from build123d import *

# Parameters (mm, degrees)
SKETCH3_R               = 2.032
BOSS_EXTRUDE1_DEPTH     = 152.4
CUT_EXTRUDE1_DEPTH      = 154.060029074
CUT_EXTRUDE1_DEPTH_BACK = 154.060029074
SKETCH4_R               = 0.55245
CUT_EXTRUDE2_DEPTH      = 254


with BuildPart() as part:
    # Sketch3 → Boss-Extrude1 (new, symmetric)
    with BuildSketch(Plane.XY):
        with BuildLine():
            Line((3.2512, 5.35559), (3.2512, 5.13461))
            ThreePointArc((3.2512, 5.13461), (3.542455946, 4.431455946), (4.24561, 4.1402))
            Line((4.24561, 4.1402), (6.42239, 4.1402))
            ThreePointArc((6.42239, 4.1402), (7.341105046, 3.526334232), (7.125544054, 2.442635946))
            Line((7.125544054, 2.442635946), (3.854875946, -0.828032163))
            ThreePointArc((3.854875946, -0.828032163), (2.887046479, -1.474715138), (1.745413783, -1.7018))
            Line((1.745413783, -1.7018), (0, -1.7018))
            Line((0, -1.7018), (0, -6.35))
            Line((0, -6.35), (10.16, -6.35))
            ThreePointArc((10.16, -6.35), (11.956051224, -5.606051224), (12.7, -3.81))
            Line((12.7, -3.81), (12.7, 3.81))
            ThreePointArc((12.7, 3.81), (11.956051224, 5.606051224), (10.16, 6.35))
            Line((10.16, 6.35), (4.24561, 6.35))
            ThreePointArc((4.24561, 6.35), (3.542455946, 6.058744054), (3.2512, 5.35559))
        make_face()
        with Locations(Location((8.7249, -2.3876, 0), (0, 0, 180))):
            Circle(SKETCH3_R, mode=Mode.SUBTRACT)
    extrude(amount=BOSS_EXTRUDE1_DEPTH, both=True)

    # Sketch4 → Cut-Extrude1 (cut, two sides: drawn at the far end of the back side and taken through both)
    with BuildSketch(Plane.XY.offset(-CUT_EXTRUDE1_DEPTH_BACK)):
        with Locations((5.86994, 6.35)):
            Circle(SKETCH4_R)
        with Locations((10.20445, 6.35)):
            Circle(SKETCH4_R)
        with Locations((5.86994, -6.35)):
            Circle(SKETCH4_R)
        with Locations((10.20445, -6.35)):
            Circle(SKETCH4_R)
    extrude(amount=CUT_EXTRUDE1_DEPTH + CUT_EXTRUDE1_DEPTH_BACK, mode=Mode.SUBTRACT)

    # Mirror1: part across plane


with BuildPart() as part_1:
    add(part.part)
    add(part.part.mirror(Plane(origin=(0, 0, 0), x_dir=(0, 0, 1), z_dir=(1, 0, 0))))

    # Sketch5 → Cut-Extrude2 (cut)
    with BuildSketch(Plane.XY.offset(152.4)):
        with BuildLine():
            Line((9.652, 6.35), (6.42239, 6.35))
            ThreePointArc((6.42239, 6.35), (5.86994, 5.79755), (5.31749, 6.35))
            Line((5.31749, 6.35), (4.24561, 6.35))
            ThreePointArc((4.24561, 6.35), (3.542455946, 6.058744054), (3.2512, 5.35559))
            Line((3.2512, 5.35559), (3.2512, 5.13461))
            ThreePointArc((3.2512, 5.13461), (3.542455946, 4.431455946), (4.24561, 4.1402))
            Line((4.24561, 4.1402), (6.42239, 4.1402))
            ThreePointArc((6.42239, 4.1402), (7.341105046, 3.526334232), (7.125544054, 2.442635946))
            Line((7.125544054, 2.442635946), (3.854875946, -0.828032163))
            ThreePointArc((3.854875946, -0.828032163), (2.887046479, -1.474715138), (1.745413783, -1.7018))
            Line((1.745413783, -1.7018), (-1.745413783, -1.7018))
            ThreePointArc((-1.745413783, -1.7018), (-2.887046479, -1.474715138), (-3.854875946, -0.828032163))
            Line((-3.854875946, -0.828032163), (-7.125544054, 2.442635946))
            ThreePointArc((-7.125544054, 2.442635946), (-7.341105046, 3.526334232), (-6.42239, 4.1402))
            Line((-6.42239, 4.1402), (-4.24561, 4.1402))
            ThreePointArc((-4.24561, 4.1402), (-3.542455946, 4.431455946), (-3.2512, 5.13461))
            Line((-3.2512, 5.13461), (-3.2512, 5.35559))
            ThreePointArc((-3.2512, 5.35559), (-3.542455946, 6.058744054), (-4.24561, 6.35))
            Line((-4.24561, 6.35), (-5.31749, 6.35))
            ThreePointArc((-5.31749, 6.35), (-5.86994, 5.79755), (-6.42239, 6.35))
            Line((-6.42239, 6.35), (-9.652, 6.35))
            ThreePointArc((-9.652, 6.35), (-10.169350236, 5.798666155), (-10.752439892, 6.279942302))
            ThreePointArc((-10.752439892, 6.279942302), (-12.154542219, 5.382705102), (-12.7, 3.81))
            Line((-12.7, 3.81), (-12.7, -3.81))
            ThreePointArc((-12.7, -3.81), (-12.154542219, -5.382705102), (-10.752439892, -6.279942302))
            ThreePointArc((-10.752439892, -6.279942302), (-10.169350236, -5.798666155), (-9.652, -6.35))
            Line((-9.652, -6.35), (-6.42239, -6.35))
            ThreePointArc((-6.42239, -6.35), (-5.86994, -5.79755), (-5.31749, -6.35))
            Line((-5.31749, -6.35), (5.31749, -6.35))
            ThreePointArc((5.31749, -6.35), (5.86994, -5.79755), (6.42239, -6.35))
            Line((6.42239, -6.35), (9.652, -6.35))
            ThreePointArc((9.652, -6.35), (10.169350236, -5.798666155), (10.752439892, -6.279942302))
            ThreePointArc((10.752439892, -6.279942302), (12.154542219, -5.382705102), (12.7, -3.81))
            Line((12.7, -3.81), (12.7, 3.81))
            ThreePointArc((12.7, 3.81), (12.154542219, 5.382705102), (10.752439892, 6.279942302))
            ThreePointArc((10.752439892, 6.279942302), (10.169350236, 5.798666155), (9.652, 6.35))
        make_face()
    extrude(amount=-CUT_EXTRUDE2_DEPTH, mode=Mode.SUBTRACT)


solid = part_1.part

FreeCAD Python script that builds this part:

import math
import FreeCAD as App
import Part
import Sketcher
from FreeCAD import Vector
Q = App.Units.Quantity

doc = App.newDocument("Part")
body = doc.addObject("PartDesign::Body", "Body")

# Sketch on XY plane
sketch1 = body.newObject("Sketcher::SketchObject", "Sketch")
sketch1.AttachmentSupport = (doc.getObject("XY_Plane"), [""])
sketch1.MapMode = "FlatFace"
sketch1.addGeometry([
    Part.LineSegment(Vector(3.25, 5.36, 0), Vector(3.25, 5.13, 0)),  # 0
    Part.ArcOfCircle(Part.Circle(Vector(4.25, 5.13, 0), Vector(0, 0, 1), 0.99), math.radians(-180), math.radians(-90)),  # 1
    Part.LineSegment(Vector(4.25, 4.14, 0), Vector(6.42, 4.14, 0)),  # 2
    Part.ArcOfCircle(Part.Circle(Vector(6.42, 3.15, 0), Vector(0, 0, 1), 0.99), math.radians(-45), math.radians(90)),  # 3
    Part.LineSegment(Vector(7.13, 2.44, 0), Vector(3.85, -0.83, 0)),  # 4
    Part.ArcOfCircle(Part.Circle(Vector(1.75, 1.28, 0), Vector(0, 0, 1), 2.98), math.radians(-90), math.radians(-45)),  # 5
    Part.LineSegment(Vector(1.75, -1.7, 0), Vector(0, -1.7, 0)),  # 6
    Part.LineSegment(Vector(0, -1.7, 0), Vector(0, -6.35, 0)),  # 7
    Part.LineSegment(Vector(0, -6.35, 0), Vector(10.16, -6.35, 0)),  # 8
    Part.ArcOfCircle(Part.Circle(Vector(10.16, -3.81, 0), Vector(0, 0, 1), 2.54), math.radians(-90), math.radians(0)),  # 9
    Part.LineSegment(Vector(12.7, -3.81, 0), Vector(12.7, 3.81, 0)),  # 10
    Part.ArcOfCircle(Part.Circle(Vector(10.16, 3.81, 0), Vector(0, 0, 1), 2.54), math.radians(0), math.radians(90)),  # 11
    Part.LineSegment(Vector(10.16, 6.35, 0), Vector(4.25, 6.35, 0)),  # 12
    Part.ArcOfCircle(Part.Circle(Vector(4.25, 5.36, 0), Vector(0, 0, 1), 0.99), math.radians(90), math.radians(180)),  # 13
    Part.Circle(Vector(8.72, -2.39, 0), Vector(0, 0, 1), 2.03),  # 14
], False)
sketch1.addConstraint([
    Sketcher.Constraint("Tangent", 0, 2, 1, 1),
    Sketcher.Constraint("Tangent", 1, 2, 2, 1),
    Sketcher.Constraint("Tangent", 2, 2, 3, 2),
    Sketcher.Constraint("Tangent", 3, 1, 4, 1),
    Sketcher.Constraint("Tangent", 4, 2, 5, 2),
    Sketcher.Constraint("Tangent", 5, 1, 6, 1),
    Sketcher.Constraint("Coincident", 6, 2, 7, 1),
    Sketcher.Constraint("Coincident", 7, 2, 8, 1),
    Sketcher.Constraint("Tangent", 8, 2, 9, 1),
    Sketcher.Constraint("Tangent", 9, 2, 10, 1),
    Sketcher.Constraint("Tangent", 10, 2, 11, 1),
    Sketcher.Constraint("Tangent", 11, 2, 12, 1),
    Sketcher.Constraint("Tangent", 12, 2, 13, 1),
    Sketcher.Constraint("Tangent", 13, 2, 0, 1),
    Sketcher.Constraint("Vertical", 0),
    Sketcher.Constraint("Horizontal", 2),
    Sketcher.Constraint("Horizontal", 6),
    Sketcher.Constraint("Vertical", 7),
    Sketcher.Constraint("Horizontal", 8),
    Sketcher.Constraint("Vertical", 10),
    Sketcher.Constraint("Horizontal", 12),
    Sketcher.Constraint("Equal", 1, 3),
    Sketcher.Constraint("Equal", 9, 11),
    Sketcher.Constraint("Equal", 3, 13),
    Sketcher.Constraint("PointOnObject", 6, 2, -2),
    Sketcher.Constraint("Radius", 9, Q("0.1 in")),
    Sketcher.Constraint("Diameter", 14, Q("0.16 in")),
    Sketcher.Constraint("DistanceX", 8, 1, 8, 2, Q("0.4 in")),
    Sketcher.Constraint("DistanceY", 10, 1, 10, 2, Q("0.3 in")),
    Sketcher.Constraint("Angle", 4, Q("-135 deg")),
    Sketcher.Constraint("DistanceY", 7, 2, 7, 1, Q("0.183 in")),
    Sketcher.Constraint("DistanceY", 9, 3, -1, 1, Q("0.15 in")),
    Sketcher.Constraint("DistanceY", 5, 1, 1, 2, Q("0.23 in")),
    Sketcher.Constraint("DistanceX", 2, 1, 2, 2, Q("0.0857 in")),
    Sketcher.Constraint("DistanceY", 0, 2, 0, 1, Q("0.0087 in")),
    Sketcher.Constraint("DistanceY", 14, 3, -1, 1, Q("0.094 in")),
    Sketcher.Constraint("DistanceX", -1, 1, 0, 2, Q("0.128 in")),
    Sketcher.Constraint("Radius", 5, 2.98323),
    Sketcher.Constraint("DistanceX", -1, 1, 14, 3, Q("0.3435 in")),
])
pad1 = body.newObject("PartDesign::Pad", "Pad")
pad1.Profile = sketch1
pad1.Length = Q("12 in")
pad1.Midplane = True

# Sketch on XY plane
sketch2 = body.newObject("Sketcher::SketchObject", "Sketch001")
sketch2.AttachmentSupport = (doc.getObject("XY_Plane"), [""])
sketch2.MapMode = "FlatFace"
sketch2.addGeometry([
    Part.Circle(Vector(5.9, 6.3, 0), Vector(0, 0, 1), 0.6),
    Part.Circle(Vector(10.2, 6.3, 0), Vector(0, 0, 1), 0.6),
    Part.Circle(Vector(5.9, -6.3, 0), Vector(0, 0, 1), 0.6),
    Part.Circle(Vector(10.2, -6.3, 0), Vector(0, 0, 1), 0.6),
], False)
sketch2.addConstraint([
    Sketcher.Constraint("Equal", 0, 1),
    Sketcher.Constraint("Equal", 1, 2),
    Sketcher.Constraint("Equal", 2, 3),
    Sketcher.Constraint("Symmetric", 0, 3, 2, 3, -1),
    Sketcher.Constraint("Symmetric", 1, 3, 3, 3, -1),
    Sketcher.Constraint("Horizontal", 0, 3, 1, 3),
    Sketcher.Constraint("Diameter", 0, Q("0.0435 in")),
    Sketcher.Constraint("DistanceY", 2, 3, 0, 3, Q("0.5 in")),
    Sketcher.Constraint("DistanceX", -1, 1, 0, 3, Q("0.2311 in")),
    Sketcher.Constraint("DistanceX", -1, 1, 1, 3, 10.20445),
])
pocket1 = body.newObject("PartDesign::Pocket", "Pocket")
pocket1.Profile = sketch2
pocket1.Type = "ThroughAll"
pocket1.Midplane = True
body2 = doc.addObject("PartDesign::Body", "Body001")
doc.recompute()

body2.BaseFeature = body
doc.recompute()

mirroring = doc.addObject("Part::Mirroring", "Mirroring")
mirroring.Source = body
mirroring.Base = Vector(0, 0, 0)
mirroring.Normal = Vector(1, 0, 0)
body3 = doc.addObject("PartDesign::Body", "Body002")
body3.BaseFeature = mirroring
boolean = body2.newObject("PartDesign::Boolean", "Boolean")
boolean.Type = "Fuse"
boolean.addObjects([body3])
doc.recompute()

# Sketch on XY plane
sketch3 = body2.newObject("Sketcher::SketchObject", "Sketch002")
sketch3.AttachmentSupport = (doc.getObject("XY_Plane001"), [""])
sketch3.MapMode = "FlatFace"
sketch3.AttachmentOffset = App.Placement(Vector(0, 0, 6 * 25.4), App.Rotation())
sketch3.addGeometry([
    Part.LineSegment(Vector(9.65, 6.35, 0), Vector(6.42, 6.35, 0)),  # 0
    Part.ArcOfCircle(Part.Circle(Vector(5.87, 6.35, 0), Vector(0, 0, 1), 0.55), math.radians(180), math.radians(360)),  # 1
    Part.LineSegment(Vector(5.32, 6.35, 0), Vector(4.25, 6.35, 0)),  # 2
    Part.ArcOfCircle(Part.Circle(Vector(4.25, 5.36, 0), Vector(0, 0, 1), 0.99), math.radians(90), math.radians(180)),  # 3
    Part.LineSegment(Vector(3.25, 5.36, 0), Vector(3.25, 5.13, 0)),  # 4
    Part.ArcOfCircle(Part.Circle(Vector(4.25, 5.13, 0), Vector(0, 0, 1), 0.99), math.radians(-180), math.radians(-90)),  # 5
    Part.LineSegment(Vector(4.25, 4.14, 0), Vector(6.42, 4.14, 0)),  # 6
    Part.ArcOfCircle(Part.Circle(Vector(6.42, 3.15, 0), Vector(0, 0, 1), 0.99), math.radians(-45), math.radians(90)),  # 7
    Part.LineSegment(Vector(7.13, 2.44, 0), Vector(3.85, -0.83, 0)),  # 8
    Part.ArcOfCircle(Part.Circle(Vector(1.75, 1.28, 0), Vector(0, 0, 1), 2.98), math.radians(-90), math.radians(-45)),  # 9
    Part.LineSegment(Vector(1.75, -1.7, 0), Vector(-1.75, -1.7, 0)),  # 10
    Part.ArcOfCircle(Part.Circle(Vector(-1.75, 1.28, 0), Vector(0, 0, 1), 2.98), math.radians(-135), math.radians(-90)),  # 11
    Part.LineSegment(Vector(-3.85, -0.83, 0), Vector(-7.13, 2.44, 0)),  # 12
    Part.ArcOfCircle(Part.Circle(Vector(-6.42, 3.15, 0), Vector(0, 0, 1), 0.99), math.radians(90), math.radians(225)),  # 13
    Part.LineSegment(Vector(-6.42, 4.14, 0), Vector(-4.25, 4.14, 0)),  # 14
    Part.ArcOfCircle(Part.Circle(Vector(-4.25, 5.13, 0), Vector(0, 0, 1), 0.99), math.radians(-90), math.radians(0)),  # 15
    Part.LineSegment(Vector(-3.25, 5.13, 0), Vector(-3.25, 5.36, 0)),  # 16
    Part.ArcOfCircle(Part.Circle(Vector(-4.25, 5.36, 0), Vector(0, 0, 1), 0.99), math.radians(0), math.radians(90)),  # 17
    Part.LineSegment(Vector(-4.25, 6.35, 0), Vector(-5.32, 6.35, 0)),  # 18
    Part.ArcOfCircle(Part.Circle(Vector(-5.87, 6.35, 0), Vector(0, 0, 1), 0.55), math.radians(180), math.radians(360)),  # 19
    Part.LineSegment(Vector(-6.42, 6.35, 0), Vector(-9.65, 6.35, 0)),  # 20
    Part.ArcOfCircle(Part.Circle(Vector(-10.2, 6.35, 0), Vector(0, 0, 1), 0.55), math.radians(-173), math.radians(0)),  # 21
    Part.ArcOfCircle(Part.Circle(Vector(-10.16, 3.81, 0), Vector(0, 0, 1), 2.54), math.radians(103), math.radians(180)),  # 22
    Part.LineSegment(Vector(-12.7, 3.81, 0), Vector(-12.7, -3.81, 0)),  # 23
    Part.ArcOfCircle(Part.Circle(Vector(-10.16, -3.81, 0), Vector(0, 0, 1), 2.54), math.radians(180), math.radians(257)),  # 24
    Part.ArcOfCircle(Part.Circle(Vector(-10.2, -6.35, 0), Vector(0, 0, 1), 0.55), math.radians(0), math.radians(173)),  # 25
    Part.LineSegment(Vector(-9.65, -6.35, 0), Vector(-6.42, -6.35, 0)),  # 26
    Part.ArcOfCircle(Part.Circle(Vector(-5.87, -6.35, 0), Vector(0, 0, 1), 0.55), math.radians(0), math.radians(180)),  # 27
    Part.LineSegment(Vector(-5.32, -6.35, 0), Vector(5.32, -6.35, 0)),  # 28
    Part.ArcOfCircle(Part.Circle(Vector(5.87, -6.35, 0), Vector(0, 0, 1), 0.55), math.radians(0), math.radians(180)),  # 29
    Part.LineSegment(Vector(6.42, -6.35, 0), Vector(9.65, -6.35, 0)),  # 30
    Part.ArcOfCircle(Part.Circle(Vector(10.2, -6.35, 0), Vector(0, 0, 1), 0.55), math.radians(7), math.radians(180)),  # 31
    Part.ArcOfCircle(Part.Circle(Vector(10.16, -3.81, 0), Vector(0, 0, 1), 2.54), math.radians(-77), math.radians(0)),  # 32
    Part.LineSegment(Vector(12.7, -3.81, 0), Vector(12.7, 3.81, 0)),  # 33
    Part.ArcOfCircle(Part.Circle(Vector(10.16, 3.81, 0), Vector(0, 0, 1), 2.54), math.radians(0), math.radians(77)),  # 34
    Part.ArcOfCircle(Part.Circle(Vector(10.2, 6.35, 0), Vector(0, 0, 1), 0.55), math.radians(-180), math.radians(-7)),  # 35
], False)
sketch3.addConstraint([
    Sketcher.Constraint("Coincident", 0, 2, 1, 2),
    Sketcher.Constraint("Coincident", 1, 1, 2, 1),
    Sketcher.Constraint("Tangent", 2, 2, 3, 1),
    Sketcher.Constraint("Tangent", 3, 2, 4, 1),
    Sketcher.Constraint("Tangent", 4, 2, 5, 1),
    Sketcher.Constraint("Tangent", 5, 2, 6, 1),
    Sketcher.Constraint("Tangent", 6, 2, 7, 2),
    Sketcher.Constraint("Tangent", 7, 1, 8, 1),
    Sketcher.Constraint("Tangent", 8, 2, 9, 2),
    Sketcher.Constraint("Tangent", 9, 1, 10, 1),
    Sketcher.Constraint("Tangent", 10, 2, 11, 2),
    Sketcher.Constraint("Tangent", 11, 1, 12, 1),
    Sketcher.Constraint("Tangent", 12, 2, 13, 2),
    Sketcher.Constraint("Tangent", 13, 1, 14, 1),
    Sketcher.Constraint("Tangent", 14, 2, 15, 1),
    Sketcher.Constraint("Tangent", 15, 2, 16, 1),
    Sketcher.Constraint("Tangent", 16, 2, 17, 1),
    Sketcher.Constraint("Tangent", 17, 2, 18, 1),
    Sketcher.Constraint("Coincident", 18, 2, 19, 2),
    Sketcher.Constraint("Coincident", 19, 1, 20, 1),
    Sketcher.Constraint("Coincident", 20, 2, 21, 2),
    Sketcher.Constraint("Coincident", 21, 1, 22, 1),
    Sketcher.Constraint("Tangent", 22, 2, 23, 1),
    Sketcher.Constraint("Tangent", 23, 2, 24, 1),
    Sketcher.Constraint("Coincident", 24, 2, 25, 2),
    Sketcher.Constraint("Coincident", 25, 1, 26, 1),
    Sketcher.Constraint("Coincident", 26, 2, 27, 2),
    Sketcher.Constraint("Coincident", 27, 1, 28, 1),
    Sketcher.Constraint("Coincident", 28, 2, 29, 2),
    Sketcher.Constraint("Coincident", 29, 1, 30, 1),
    Sketcher.Constraint("Coincident", 30, 2, 31, 2),
    Sketcher.Constraint("Coincident", 31, 1, 32, 1),
    Sketcher.Constraint("Tangent", 32, 2, 33, 1),
    Sketcher.Constraint("Tangent", 33, 2, 34, 1),
    Sketcher.Constraint("Coincident", 34, 2, 35, 2),
    Sketcher.Constraint("Coincident", 35, 1, 0, 1),
    Sketcher.Constraint("Horizontal", 0),
    Sketcher.Constraint("Horizontal", 2),
    Sketcher.Constraint("Vertical", 4),
    Sketcher.Constraint("Horizontal", 6),
    Sketcher.Constraint("Horizontal", 10),
    Sketcher.Constraint("Horizontal", 14),
    Sketcher.Constraint("Vertical", 16),
    Sketcher.Constraint("Horizontal", 18),
    Sketcher.Constraint("Horizontal", 20),
    Sketcher.Constraint("Vertical", 23),
    Sketcher.Constraint("Horizontal", 26),
    Sketcher.Constraint("Horizontal", 28),
    Sketcher.Constraint("Horizontal", 30),
    Sketcher.Constraint("Vertical", 33),
    Sketcher.Constraint("Equal", 3, 5),
    Sketcher.Constraint("Equal", 5, 7),
    Sketcher.Constraint("Equal", 9, 11),
    Sketcher.Constraint("Equal", 7, 13),
    Sketcher.Constraint("Equal", 13, 15),
    Sketcher.Constraint("Equal", 15, 17),
    Sketcher.Constraint("Equal", 1, 19),
    Sketcher.Constraint("Equal", 19, 21),
    Sketcher.Constraint("Equal", 22, 24),
    Sketcher.Constraint("Equal", 21, 25),
    Sketcher.Constraint("Equal", 25, 27),
    Sketcher.Constraint("Equal", 27, 29),
    Sketcher.Constraint("Equal", 29, 31),
    Sketcher.Constraint("Equal", 24, 32),
    Sketcher.Constraint("Equal", 32, 34),
    Sketcher.Constraint("Equal", 31, 35),
    Sketcher.Constraint("Symmetric", 1, 3, 27, 3, -1, 1),
    Sketcher.Constraint("Symmetric", 19, 3, 29, 3, -1, 1),
    Sketcher.Constraint("Symmetric", 21, 3, 31, 3, -1, 1),
    Sketcher.Constraint("Symmetric", 22, 3, 32, 3, -1, 1),
    Sketcher.Constraint("Symmetric", 25, 3, 35, 3, -1, 1),
    Sketcher.Constraint("Symmetric", 7, 3, 13, 3, -2),
    Sketcher.Constraint("Symmetric", 3, 3, 17, 3, -2),
    Sketcher.Constraint("Symmetric", 1, 3, 19, 3, -2),
    Sketcher.Constraint("Symmetric", 25, 3, 31, 3, -2),
    Sketcher.Constraint("Perpendicular", 8, 12),
    Sketcher.Constraint("Horizontal", 19, 3, 21, 3),
    Sketcher.Constraint("Horizontal", 24, 3, 32, 3),
    Sketcher.Constraint("Horizontal", 22, 3, 34, 3),
    Sketcher.Constraint("Horizontal", 35, 3, 0, 2),
    Sketcher.Constraint("Horizontal", 0, 2, 1, 1),
    Sketcher.Constraint("Horizontal", 8, 2, 11, 1),
    Sketcher.Constraint("Horizontal", 18, 2, 19, 1),
    Sketcher.Constraint("Horizontal", 31, 3, 25, 1),
    Sketcher.Constraint("Horizontal", 26, 2, 27, 1),
    Sketcher.Constraint("Horizontal", 28, 2, 29, 1),
    Sketcher.Constraint("Vertical", 7, 3, 0, 2),
    Sketcher.Constraint("Radius", 22, Q("0.1 in")),
    Sketcher.Constraint("DistanceY", 23, 2, 23, 1, Q("0.3 in")),
    Sketcher.Constraint("DistanceX", 22, 3, -1, 1, Q("0.4 in")),
    Sketcher.Constraint("DistanceY", 22, 3, 21, 3, Q("0.1 in")),
    Sketcher.Constraint("DistanceX", 20, 2, -1, 1, Q("0.38 in")),
    Sketcher.Constraint("DistanceX", 13, 3, 5, 3, Q("0.42 in")),
    Sketcher.Constraint("DistanceY", 9, 1, 5, 2, Q("0.23 in")),
    Sketcher.Constraint("DistanceX", 2, 2, 2, 1, Q("0.0422 in")),
    Sketcher.Constraint("DistanceX", 6, 1, 6, 2, Q("0.0857 in")),
    Sketcher.Constraint("DistanceY", 4, 2, 4, 1, Q("0.0087 in")),
    Sketcher.Constraint("DistanceX", -1, 1, 3, 2, Q("0.128 in")),
    Sketcher.Constraint("Radius", 9, 2.98323),
])
pocket2 = body2.newObject("PartDesign::Pocket", "Pocket001")
pocket2.Profile = sketch3
pocket2.Length = Q("10 in")
mirroring.Visibility = False

doc.recompute()
